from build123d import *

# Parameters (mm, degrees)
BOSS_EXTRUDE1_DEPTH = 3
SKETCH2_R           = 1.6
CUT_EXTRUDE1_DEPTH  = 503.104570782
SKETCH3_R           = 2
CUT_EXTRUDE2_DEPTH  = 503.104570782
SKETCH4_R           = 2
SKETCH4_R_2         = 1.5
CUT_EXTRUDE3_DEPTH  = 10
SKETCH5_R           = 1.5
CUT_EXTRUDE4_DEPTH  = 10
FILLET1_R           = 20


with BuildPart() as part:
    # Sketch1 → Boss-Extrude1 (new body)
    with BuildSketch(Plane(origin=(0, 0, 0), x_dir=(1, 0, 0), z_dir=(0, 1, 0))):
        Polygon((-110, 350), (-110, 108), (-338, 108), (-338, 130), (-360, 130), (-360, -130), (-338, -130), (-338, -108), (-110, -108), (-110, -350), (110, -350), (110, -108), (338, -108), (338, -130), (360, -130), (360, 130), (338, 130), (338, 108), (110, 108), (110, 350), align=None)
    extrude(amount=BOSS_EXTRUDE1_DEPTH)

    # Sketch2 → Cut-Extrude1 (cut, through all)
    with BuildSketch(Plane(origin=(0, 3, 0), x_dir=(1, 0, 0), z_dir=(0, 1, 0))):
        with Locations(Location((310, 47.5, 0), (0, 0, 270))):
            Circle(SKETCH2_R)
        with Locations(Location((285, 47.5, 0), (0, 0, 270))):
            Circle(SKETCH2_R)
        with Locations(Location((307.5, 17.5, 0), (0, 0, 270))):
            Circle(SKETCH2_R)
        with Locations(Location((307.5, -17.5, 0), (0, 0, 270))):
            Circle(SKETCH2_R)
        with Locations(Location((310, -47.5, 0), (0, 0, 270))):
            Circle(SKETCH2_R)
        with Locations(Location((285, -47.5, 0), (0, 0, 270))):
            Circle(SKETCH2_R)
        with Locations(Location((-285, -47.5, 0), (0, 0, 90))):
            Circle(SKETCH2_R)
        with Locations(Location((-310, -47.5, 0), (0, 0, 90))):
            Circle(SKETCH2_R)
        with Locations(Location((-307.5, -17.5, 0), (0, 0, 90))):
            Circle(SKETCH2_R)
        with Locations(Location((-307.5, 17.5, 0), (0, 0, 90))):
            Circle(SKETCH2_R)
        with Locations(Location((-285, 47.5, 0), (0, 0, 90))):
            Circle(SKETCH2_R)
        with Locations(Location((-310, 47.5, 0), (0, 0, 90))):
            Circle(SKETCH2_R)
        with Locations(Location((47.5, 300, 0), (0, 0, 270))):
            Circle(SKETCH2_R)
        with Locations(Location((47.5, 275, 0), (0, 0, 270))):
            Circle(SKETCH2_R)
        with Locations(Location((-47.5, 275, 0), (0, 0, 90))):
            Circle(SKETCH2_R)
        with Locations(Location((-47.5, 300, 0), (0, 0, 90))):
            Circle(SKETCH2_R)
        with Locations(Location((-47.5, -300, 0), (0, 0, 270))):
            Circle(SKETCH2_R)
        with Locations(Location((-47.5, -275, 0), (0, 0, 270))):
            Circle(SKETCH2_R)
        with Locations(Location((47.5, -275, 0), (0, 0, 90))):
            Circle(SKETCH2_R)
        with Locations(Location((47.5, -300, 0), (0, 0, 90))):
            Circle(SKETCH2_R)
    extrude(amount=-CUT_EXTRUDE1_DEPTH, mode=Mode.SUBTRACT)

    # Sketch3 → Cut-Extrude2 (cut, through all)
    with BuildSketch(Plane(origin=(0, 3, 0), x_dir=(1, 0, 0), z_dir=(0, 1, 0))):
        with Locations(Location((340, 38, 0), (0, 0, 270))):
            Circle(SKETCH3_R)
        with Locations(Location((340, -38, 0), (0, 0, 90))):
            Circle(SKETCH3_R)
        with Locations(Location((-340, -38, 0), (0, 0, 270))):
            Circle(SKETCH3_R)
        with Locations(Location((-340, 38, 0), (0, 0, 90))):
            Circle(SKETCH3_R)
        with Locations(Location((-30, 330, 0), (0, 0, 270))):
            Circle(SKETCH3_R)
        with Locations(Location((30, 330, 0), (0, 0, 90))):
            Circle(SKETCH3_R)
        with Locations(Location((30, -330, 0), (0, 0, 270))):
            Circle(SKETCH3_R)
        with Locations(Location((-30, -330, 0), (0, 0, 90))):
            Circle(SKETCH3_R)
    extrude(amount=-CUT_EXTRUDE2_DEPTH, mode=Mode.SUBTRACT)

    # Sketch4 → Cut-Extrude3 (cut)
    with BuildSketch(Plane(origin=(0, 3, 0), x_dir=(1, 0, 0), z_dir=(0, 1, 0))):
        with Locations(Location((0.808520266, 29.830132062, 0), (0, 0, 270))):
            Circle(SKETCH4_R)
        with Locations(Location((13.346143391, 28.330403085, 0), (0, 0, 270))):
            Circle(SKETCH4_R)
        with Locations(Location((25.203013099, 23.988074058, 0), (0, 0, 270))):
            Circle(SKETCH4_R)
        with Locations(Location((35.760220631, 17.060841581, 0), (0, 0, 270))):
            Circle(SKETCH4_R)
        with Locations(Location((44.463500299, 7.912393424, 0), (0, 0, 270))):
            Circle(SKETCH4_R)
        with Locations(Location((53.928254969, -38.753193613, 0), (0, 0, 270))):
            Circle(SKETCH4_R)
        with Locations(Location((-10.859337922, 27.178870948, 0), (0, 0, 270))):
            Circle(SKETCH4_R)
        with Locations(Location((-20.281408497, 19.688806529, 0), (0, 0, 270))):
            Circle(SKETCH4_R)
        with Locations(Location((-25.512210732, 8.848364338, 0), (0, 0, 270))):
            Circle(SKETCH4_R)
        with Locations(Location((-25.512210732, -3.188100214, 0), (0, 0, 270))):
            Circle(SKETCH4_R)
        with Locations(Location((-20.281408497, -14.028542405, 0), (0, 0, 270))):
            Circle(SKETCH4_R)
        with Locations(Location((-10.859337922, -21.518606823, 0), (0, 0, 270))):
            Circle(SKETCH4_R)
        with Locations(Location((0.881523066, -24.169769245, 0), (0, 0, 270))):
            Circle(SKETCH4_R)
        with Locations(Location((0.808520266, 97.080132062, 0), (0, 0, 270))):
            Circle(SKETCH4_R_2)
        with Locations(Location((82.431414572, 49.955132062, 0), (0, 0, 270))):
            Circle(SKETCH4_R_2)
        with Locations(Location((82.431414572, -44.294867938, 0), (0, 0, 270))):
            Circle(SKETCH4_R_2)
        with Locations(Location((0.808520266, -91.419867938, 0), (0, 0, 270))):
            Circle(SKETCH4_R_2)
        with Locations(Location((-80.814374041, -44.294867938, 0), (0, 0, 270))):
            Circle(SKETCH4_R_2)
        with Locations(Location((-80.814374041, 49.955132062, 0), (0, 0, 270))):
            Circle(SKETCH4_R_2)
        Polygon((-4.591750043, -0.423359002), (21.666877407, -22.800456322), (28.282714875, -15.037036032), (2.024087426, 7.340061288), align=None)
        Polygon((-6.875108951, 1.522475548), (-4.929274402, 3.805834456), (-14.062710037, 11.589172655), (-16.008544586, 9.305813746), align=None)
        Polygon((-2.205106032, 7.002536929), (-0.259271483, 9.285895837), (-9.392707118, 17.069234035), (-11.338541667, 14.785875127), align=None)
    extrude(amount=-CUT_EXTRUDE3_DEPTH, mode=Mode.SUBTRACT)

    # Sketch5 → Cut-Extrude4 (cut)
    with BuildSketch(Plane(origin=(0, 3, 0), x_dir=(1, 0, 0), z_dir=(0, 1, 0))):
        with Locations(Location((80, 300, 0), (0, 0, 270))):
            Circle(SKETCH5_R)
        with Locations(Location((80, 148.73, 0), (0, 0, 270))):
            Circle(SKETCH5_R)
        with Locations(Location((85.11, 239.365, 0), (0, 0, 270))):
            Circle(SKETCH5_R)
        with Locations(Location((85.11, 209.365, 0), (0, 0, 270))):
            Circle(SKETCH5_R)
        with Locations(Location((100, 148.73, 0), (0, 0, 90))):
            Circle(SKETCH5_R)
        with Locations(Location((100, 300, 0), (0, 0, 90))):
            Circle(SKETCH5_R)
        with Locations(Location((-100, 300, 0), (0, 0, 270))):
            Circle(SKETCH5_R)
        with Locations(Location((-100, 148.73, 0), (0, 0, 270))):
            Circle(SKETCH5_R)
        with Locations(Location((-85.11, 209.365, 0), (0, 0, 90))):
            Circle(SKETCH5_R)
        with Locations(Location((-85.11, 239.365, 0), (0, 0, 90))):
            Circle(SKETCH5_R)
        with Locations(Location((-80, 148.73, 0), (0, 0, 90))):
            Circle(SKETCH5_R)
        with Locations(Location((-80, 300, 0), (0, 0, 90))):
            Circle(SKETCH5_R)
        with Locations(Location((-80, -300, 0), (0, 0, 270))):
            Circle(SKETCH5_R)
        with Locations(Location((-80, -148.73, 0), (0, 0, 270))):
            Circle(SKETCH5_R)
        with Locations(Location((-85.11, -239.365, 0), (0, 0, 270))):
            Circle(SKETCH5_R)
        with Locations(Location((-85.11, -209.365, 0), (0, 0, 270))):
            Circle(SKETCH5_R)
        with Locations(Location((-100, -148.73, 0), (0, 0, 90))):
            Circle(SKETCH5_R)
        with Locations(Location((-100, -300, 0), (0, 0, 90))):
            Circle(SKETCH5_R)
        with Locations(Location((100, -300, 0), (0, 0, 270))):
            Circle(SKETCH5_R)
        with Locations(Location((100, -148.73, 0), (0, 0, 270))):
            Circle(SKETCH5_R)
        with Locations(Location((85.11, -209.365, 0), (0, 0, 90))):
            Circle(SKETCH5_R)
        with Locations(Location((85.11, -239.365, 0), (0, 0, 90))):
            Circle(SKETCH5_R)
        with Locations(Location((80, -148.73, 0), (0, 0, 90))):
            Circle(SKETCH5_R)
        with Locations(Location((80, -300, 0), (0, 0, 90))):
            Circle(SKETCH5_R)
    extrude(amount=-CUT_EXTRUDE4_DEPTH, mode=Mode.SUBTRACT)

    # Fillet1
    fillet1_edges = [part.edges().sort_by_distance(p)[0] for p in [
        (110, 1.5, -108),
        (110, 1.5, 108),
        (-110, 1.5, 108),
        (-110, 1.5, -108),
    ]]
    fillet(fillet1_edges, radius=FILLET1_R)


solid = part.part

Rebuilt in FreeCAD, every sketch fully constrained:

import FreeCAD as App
import Part
import Sketcher


def edges_at(feature, points):
    """Names of the edges that pass closest to the given points."""
    edges = feature.Shape.Edges
    near = lambda p: min(range(len(edges)), key=lambda i: edges[i].distToShape(Part.Vertex(*p))[0])
    return sorted({f"Edge{near(p) + 1}" for p in points})

doc = App.newDocument("Part")
params = doc.addObject("Spreadsheet::Sheet", "Params")
for row, (alias, value) in enumerate([
    ("sketch1_width", "228 mm"),
    ("sketch1_width2", "22 mm"),
    ("sketch1_width3", "220 mm"),
    ("sketch1_height", "242 mm"),
    ("sketch1_height2", "260 mm"),
    ("pad1_length", "3 mm"),
    ("sketch2_diameter", "3.2 mm"),
    ("sketch3_diameter", "4 mm"),
    ("sketch4_diameter", "4 mm"),
    ("sketch4_diameter2", "3 mm"),
    ("sketch4_length", "3 mm"),
    ("sketch4_length2", "12 mm"),
    ("sketch4_length3", "34.5 mm"),
    ("pocket3_length", "10 mm"),
    ("sketch5_diameter", "3 mm"),
    ("pocket4_length", "10 mm"),
    ("fillet_radius", "20 mm"),
], start=1):
    params.set(f"A{row}", alias)
    params.set(f"B{row}", "=" + value)
    params.setAlias(f"B{row}", alias)

body = doc.addObject("PartDesign::Body", "Body")

sketch1 = doc.addObject("Sketcher::SketchObject", "Sketch")
body.addObject(sketch1)
sketch1.AttachmentSupport = (doc.XZ_Plane, [""])
sketch1.MapMode = "FlatFace"
sketch1.addGeometry([
    Part.LineSegment(App.Vector(-110, -350, 0), App.Vector(-110, -108, 0)),
    Part.LineSegment(App.Vector(-110, -108, 0), App.Vector(-338, -108, 0)),
    Part.LineSegment(App.Vector(-338, -108, 0), App.Vector(-338, -130, 0)),
    Part.LineSegment(App.Vector(-338, -130, 0), App.Vector(-360, -130, 0)),
    Part.LineSegment(App.Vector(-360, -130, 0), App.Vector(-360, 130, 0)),
    Part.LineSegment(App.Vector(-360, 130, 0), App.Vector(-338, 130, 0)),
    Part.LineSegment(App.Vector(-338, 130, 0), App.Vector(-338, 108, 0)),
    Part.LineSegment(App.Vector(-338, 108, 0), App.Vector(-110, 108, 0)),
    Part.LineSegment(App.Vector(-110, 108, 0), App.Vector(-110, 350, 0)),
    Part.LineSegment(App.Vector(-110, 350, 0), App.Vector(110, 350, 0)),
    Part.LineSegment(App.Vector(110, 350, 0), App.Vector(110, 108, 0)),
    Part.LineSegment(App.Vector(110, 108, 0), App.Vector(338, 108, 0)),
    Part.LineSegment(App.Vector(338, 108, 0), App.Vector(338, 130, 0)),
    Part.LineSegment(App.Vector(338, 130, 0), App.Vector(360, 130, 0)),
    Part.LineSegment(App.Vector(360, 130, 0), App.Vector(360, -130, 0)),
    Part.LineSegment(App.Vector(360, -130, 0), App.Vector(338, -130, 0)),
    Part.LineSegment(App.Vector(338, -130, 0), App.Vector(338, -108, 0)),
    Part.LineSegment(App.Vector(338, -108, 0), App.Vector(110, -108, 0)),
    Part.LineSegment(App.Vector(110, -108, 0), App.Vector(110, -350, 0)),
    Part.LineSegment(App.Vector(110, -350, 0), App.Vector(-110, -350, 0)),
], False)
sketch1.addConstraint([
    Sketcher.Constraint("Coincident", 0, 2, 1, 1),
    Sketcher.Constraint("Coincident", 1, 2, 2, 1),
    Sketcher.Constraint("Coincident", 2, 2, 3, 1),
    Sketcher.Constraint("Coincident", 3, 2, 4, 1),
    Sketcher.Constraint("Coincident", 4, 2, 5, 1),
    Sketcher.Constraint("Coincident", 5, 2, 6, 1),
    Sketcher.Constraint("Coincident", 6, 2, 7, 1),
    Sketcher.Constraint("Coincident", 7, 2, 8, 1),
    Sketcher.Constraint("Coincident", 8, 2, 9, 1),
    Sketcher.Constraint("Coincident", 9, 2, 10, 1),
    Sketcher.Constraint("Coincident", 10, 2, 11, 1),
    Sketcher.Constraint("Coincident", 11, 2, 12, 1),
    Sketcher.Constraint("Coincident", 12, 2, 13, 1),
    Sketcher.Constraint("Coincident", 13, 2, 14, 1),
    Sketcher.Constraint("Coincident", 14, 2, 15, 1),
    Sketcher.Constraint("Coincident", 15, 2, 16, 1),
    Sketcher.Constraint("Coincident", 16, 2, 17, 1),
    Sketcher.Constraint("Coincident", 17, 2, 18, 1),
    Sketcher.Constraint("Coincident", 18, 2, 19, 1),
    Sketcher.Constraint("Coincident", 19, 2, 0, 1),
    Sketcher.Constraint("Vertical", 0),
    Sketcher.Constraint("Horizontal", 1),
    Sketcher.Constraint("Vertical", 2),
    Sketcher.Constraint("Horizontal", 3),
    Sketcher.Constraint("Vertical", 4),
    Sketcher.Constraint("Horizontal", 5),
    Sketcher.Constraint("Vertical", 6),
    Sketcher.Constraint("Horizontal", 7),
    Sketcher.Constraint("Vertical", 8),
    Sketcher.Constraint("Horizontal", 9),
    Sketcher.Constraint("Vertical", 10),
    Sketcher.Constraint("Horizontal", 11),
    Sketcher.Constraint("Vertical", 12),
    Sketcher.Constraint("Horizontal", 13),
    Sketcher.Constraint("Vertical", 14),
    Sketcher.Constraint("Horizontal", 15),
    Sketcher.Constraint("Vertical", 16),
    Sketcher.Constraint("Horizontal", 17),
    Sketcher.Constraint("Vertical", 18),
    Sketcher.Constraint("Horizontal", 19),
    Sketcher.Constraint("Symmetric", 0, 2, 10, 2, -1, 1),
    Sketcher.Constraint("Symmetric", 2, 2, 12, 2, -1, 1),
    Sketcher.Constraint("Symmetric", 4, 2, 14, 2, -1, 1),
    Sketcher.Constraint("Symmetric", 6, 2, 16, 2, -1, 1),
    Sketcher.Constraint("Symmetric", 8, 2, 18, 2, -1, 1),
    Sketcher.Constraint("Symmetric", 7, 2, 10, 2, -2),
    Sketcher.Constraint("Symmetric", 5, 2, 12, 2, -2),
    Sketcher.Constraint("Equal", 15, 2),
    Sketcher.Constraint("DistanceX", 1, 2, 1, 1, 228.0),
    Sketcher.Constraint("DistanceX", 3, 2, 3, 1, 22.0),
    Sketcher.Constraint("DistanceX", 9, 1, 9, 2, 220.0),
    Sketcher.Constraint("DistanceY", 0, 1, 0, 2, 242.0),
    Sketcher.Constraint("DistanceY", 4, 1, 4, 2, 260.0),
])
sketch1.setExpression("Constraints[48]", "Params.sketch1_width")
sketch1.setExpression("Constraints[49]", "Params.sketch1_width2")
sketch1.setExpression("Constraints[50]", "Params.sketch1_width3")
sketch1.setExpression("Constraints[51]", "Params.sketch1_height")
sketch1.setExpression("Constraints[52]", "Params.sketch1_height2")
pad1 = doc.addObject("PartDesign::Pad", "Pad")
body.addObject(pad1)
pad1.Profile = sketch1
pad1.setExpression("Length", "Params.pad1_length")
pad1.Reversed = True

sketch2 = doc.addObject("Sketcher::SketchObject", "Sketch001")
body.addObject(sketch2)
sketch2.AttachmentSupport = (doc.XZ_Plane, [""])
sketch2.MapMode = "FlatFace"
sketch2.AttachmentOffset = App.Placement(App.Vector(0, 0, -3), App.Rotation())
sketch2.addGeometry([
    Part.Circle(App.Vector(310, -47.5, 0), App.Vector(0, 0, 1), 1.6),
    Part.Circle(App.Vector(285, -47.5, 0), App.Vector(0, 0, 1), 1.6),
    Part.Circle(App.Vector(307.5, -17.5, 0), App.Vector(0, 0, 1), 1.6),
    Part.Circle(App.Vector(307.5, 17.5, 0), App.Vector(0, 0, 1), 1.6),
    Part.Circle(App.Vector(310, 47.5, 0), App.Vector(0, 0, 1), 1.6),
    Part.Circle(App.Vector(285, 47.5, 0), App.Vector(0, 0, 1), 1.6),
    Part.Circle(App.Vector(-285, 47.5, 0), App.Vector(0, 0, 1), 1.6),
    Part.Circle(App.Vector(-310, 47.5, 0), App.Vector(0, 0, 1), 1.6),
    Part.Circle(App.Vector(-307.5, 17.5, 0), App.Vector(0, 0, 1), 1.6),
    Part.Circle(App.Vector(-307.5, -17.5, 0), App.Vector(0, 0, 1), 1.6),
    Part.Circle(App.Vector(-285, -47.5, 0), App.Vector(0, 0, 1), 1.6),
    Part.Circle(App.Vector(-310, -47.5, 0), App.Vector(0, 0, 1), 1.6),
    Part.Circle(App.Vector(47.5, -300, 0), App.Vector(0, 0, 1), 1.6),
    Part.Circle(App.Vector(47.5, -275, 0), App.Vector(0, 0, 1), 1.6),
    Part.Circle(App.Vector(-47.5, -275, 0), App.Vector(0, 0, 1), 1.6),
    Part.Circle(App.Vector(-47.5, -300, 0), App.Vector(0, 0, 1), 1.6),
    Part.Circle(App.Vector(-47.5, 300, 0), App.Vector(0, 0, 1), 1.6),
    Part.Circle(App.Vector(-47.5, 275, 0), App.Vector(0, 0, 1), 1.6),
    Part.Circle(App.Vector(47.5, 275, 0), App.Vector(0, 0, 1), 1.6),
    Part.Circle(App.Vector(47.5, 300, 0), App.Vector(0, 0, 1), 1.6),
], False)
sketch2.addConstraint([
    Sketcher.Constraint("Equal", 0, 1),
    Sketcher.Constraint("Equal", 1, 2),
    Sketcher.Constraint("Equal", 2, 3),
    Sketcher.Constraint("Equal", 3, 4),
    Sketcher.Constraint("Equal", 4, 5),
    Sketcher.Constraint("Equal", 5, 6),
    Sketcher.Constraint("Equal", 6, 7),
    Sketcher.Constraint("Equal", 7, 8),
    Sketcher.Constraint("Equal", 8, 9),
    Sketcher.Constraint("Equal", 9, 10),
    Sketcher.Constraint("Equal", 10, 11),
    Sketcher.Constraint("Equal", 11, 12),
    Sketcher.Constraint("Equal", 12, 13),
    Sketcher.Constraint("Equal", 13, 14),
    Sketcher.Constraint("Equal", 14, 15),
    Sketcher.Constraint("Equal", 15, 16),
    Sketcher.Constraint("Equal", 16, 17),
    Sketcher.Constraint("Equal", 17, 18),
    Sketcher.Constraint("Equal", 18, 19),
    Sketcher.Constraint("Symmetric", 1, 3, 6, 3, -1, 1),
    Sketcher.Constraint("Symmetric", 0, 3, 7, 3, -1, 1),
    Sketcher.Constraint("Symmetric", 2, 3, 8, 3, -1, 1),
    Sketcher.Constraint("Symmetric", 3, 3, 9, 3, -1, 1),
    Sketcher.Constraint("Symmetric", 5, 3, 10, 3, -1, 1),
    Sketcher.Constraint("Symmetric", 4, 3, 11, 3, -1, 1),
    Sketcher.Constraint("Symmetric", 12, 3, 16, 3, -1, 1),
    Sketcher.Constraint("Symmetric", 13, 3, 17, 3, -1, 1),
    Sketcher.Constraint("Symmetric", 14, 3, 18, 3, -1, 1),
    Sketcher.Constraint("Symmetric", 15, 3, 19, 3, -1, 1),
    Sketcher.Constraint("Symmetric", 5, 3, 6, 3, -2),
    Sketcher.Constraint("Symmetric", 4, 3, 7, 3, -2),
    Sketcher.Constraint("Symmetric", 3, 3, 8, 3, -2),
    Sketcher.Constraint("Symmetric", 13, 3, 14, 3, -2),
    Sketcher.Constraint("Symmetric", 12, 3, 15, 3, -2),
    Sketcher.Constraint("Horizontal", 0, 3, 1, 3),
    Sketcher.Constraint("Vertical", 12, 3, 13, 3),
    Sketcher.Constraint("Diameter", 0, 3.2),
    Sketcher.Constraint("DistanceX", -1, 1, 0, 3, 310.0),
    Sketcher.Constraint("DistanceX", -1, 1, 1, 3, 285.0),
    Sketcher.Constraint("DistanceY", 12, 3, -1, 1, 300.0),
    Sketcher.Constraint("DistanceY", 13, 3, -1, 1, 275.0),
    Sketcher.Constraint("DistanceY", 0, 3, 2, 3, 30.0),
    Sketcher.Constraint("DistanceY", 2, 3, 3, 3, 35.0),
    Sketcher.Constraint("DistanceX", 8, 3, 3, 3, 615.0),
    Sketcher.Constraint("DistanceX", 12, 3, 2, 3, 260.0),
])
sketch2.setExpression("Constraints[36]", "Params.sketch2_diameter")
pocket1 = doc.addObject("PartDesign::Pocket", "Pocket")
body.addObject(pocket1)
pocket1.Profile = sketch2
pocket1.Type = "ThroughAll"
pocket1.Reversed = True

sketch3 = doc.addObject("Sketcher::SketchObject", "Sketch002")
body.addObject(sketch3)
sketch3.AttachmentSupport = (doc.XZ_Plane, [""])
sketch3.MapMode = "FlatFace"
sketch3.AttachmentOffset = App.Placement(App.Vector(0, 0, -3), App.Rotation())
sketch3.addGeometry([
    Part.Circle(App.Vector(340, -38, 0), App.Vector(0, 0, 1), 2),
    Part.Circle(App.Vector(340, 38, 0), App.Vector(0, 0, 1), 2),
    Part.Circle(App.Vector(-340, 38, 0), App.Vector(0, 0, 1), 2),
    Part.Circle(App.Vector(-340, -38, 0), App.Vector(0, 0, 1), 2),
    Part.Circle(App.Vector(-30, -330, 0), App.Vector(0, 0, 1), 2),
    Part.Circle(App.Vector(30, -330, 0), App.Vector(0, 0, 1), 2),
    Part.Circle(App.Vector(30, 330, 0), App.Vector(0, 0, 1), 2),
    Part.Circle(App.Vector(-30, 330, 0), App.Vector(0, 0, 1), 2),
], False)
sketch3.addConstraint([
    Sketcher.Constraint("Equal", 0, 1),
    Sketcher.Constraint("Equal", 1, 2),
    Sketcher.Constraint("Equal", 2, 3),
    Sketcher.Constraint("Equal", 3, 4),
    Sketcher.Constraint("Equal", 4, 5),
    Sketcher.Constraint("Equal", 5, 6),
    Sketcher.Constraint("Equal", 6, 7),
    Sketcher.Constraint("Symmetric", 0, 3, 2, 3, -1, 1),
    Sketcher.Constraint("Symmetric", 1, 3, 3, 3, -1, 1),
    Sketcher.Constraint("Symmetric", 4, 3, 6, 3, -1, 1),
    Sketcher.Constraint("Symmetric", 5, 3, 7, 3, -1, 1),
    Sketcher.Constraint("Symmetric", 1, 3, 2, 3, -2),
    Sketcher.Constraint("Symmetric", 4, 3, 5, 3, -2),
    Sketcher.Constraint("Diameter", 0, 4.0),
    Sketcher.Constraint("DistanceX", -1, 1, 0, 3, 340.0),
    Sketcher.Constraint("DistanceY", 0, 3, -1, 1, 38.0),
    Sketcher.Constraint("DistanceX", 4, 3, -1, 1, 30.0),
    Sketcher.Constraint("DistanceY", 4, 3, -1, 1, 330.0),
])
sketch3.setExpression("Constraints[13]", "Params.sketch3_diameter")
pocket2 = doc.addObject("PartDesign::Pocket", "Pocket001")
body.addObject(pocket2)
pocket2.Profile = sketch3
pocket2.Type = "ThroughAll"
pocket2.Reversed = True

sketch4 = doc.addObject("Sketcher::SketchObject", "Sketch003")
body.addObject(sketch4)
sketch4.AttachmentSupport = (doc.XZ_Plane, [""])
sketch4.MapMode = "FlatFace"
sketch4.AttachmentOffset = App.Placement(App.Vector(0, 0, -3), App.Rotation())
sketch4.addGeometry([
    Part.Circle(App.Vector(0.80852, -29.830132, 0), App.Vector(0, 0, 1), 2),
    Part.Circle(App.Vector(13.346143, -28.330403, 0), App.Vector(0, 0, 1), 2),
    Part.Circle(App.Vector(25.203013, -23.988074, 0), App.Vector(0, 0, 1), 2),
    Part.Circle(App.Vector(35.760221, -17.060842, 0), App.Vector(0, 0, 1), 2),
    Part.Circle(App.Vector(44.4635, -7.912393, 0), App.Vector(0, 0, 1), 2),
    Part.Circle(App.Vector(53.928255, 38.753194, 0), App.Vector(0, 0, 1), 2),
    Part.Circle(App.Vector(-10.859338, -27.178871, 0), App.Vector(0, 0, 1), 2),
    Part.Circle(App.Vector(-20.281408, -19.688807, 0), App.Vector(0, 0, 1), 2),
    Part.Circle(App.Vector(-25.512211, -8.848364, 0), App.Vector(0, 0, 1), 2),
    Part.Circle(App.Vector(-25.512211, 3.1881, 0), App.Vector(0, 0, 1), 2),
    Part.Circle(App.Vector(-20.281408, 14.028542, 0), App.Vector(0, 0, 1), 2),
    Part.Circle(App.Vector(-10.859338, 21.518607, 0), App.Vector(0, 0, 1), 2),
    Part.Circle(App.Vector(0.881523, 24.169769, 0), App.Vector(0, 0, 1), 2),
    Part.Circle(App.Vector(0.80852, -97.080132, 0), App.Vector(0, 0, 1), 1.5),
    Part.Circle(App.Vector(82.431415, -49.955132, 0), App.Vector(0, 0, 1), 1.5),
    Part.Circle(App.Vector(82.431415, 44.294868, 0), App.Vector(0, 0, 1), 1.5),
    Part.Circle(App.Vector(0.80852, 91.419868, 0), App.Vector(0, 0, 1), 1.5),
    Part.Circle(App.Vector(-80.814374, 44.294868, 0), App.Vector(0, 0, 1), 1.5),
    Part.Circle(App.Vector(-80.814374, -49.955132, 0), App.Vector(0, 0, 1), 1.5),
    Part.LineSegment(App.Vector(-4.59175, 0.423359, 0), App.Vector(21.666877, 22.800456, 0)),
    Part.LineSegment(App.Vector(21.666877, 22.800456, 0), App.Vector(28.282715, 15.037036, 0)),
    Part.LineSegment(App.Vector(28.282715, 15.037036, 0), App.Vector(2.024087, -7.340061, 0)),
    Part.LineSegment(App.Vector(2.024087, -7.340061, 0), App.Vector(-4.59175, 0.423359, 0)),
    Part.LineSegment(App.Vector(-6.875109, -1.522476, 0), App.Vector(-4.929274, -3.805834, 0)),
    Part.LineSegment(App.Vector(-4.929274, -3.805834, 0), App.Vector(-14.06271, -11.589173, 0)),
    Part.LineSegment(App.Vector(-14.06271, -11.589173, 0), App.Vector(-16.008545, -9.305814, 0)),
    Part.LineSegment(App.Vector(-16.008545, -9.305814, 0), App.Vector(-6.875109, -1.522476, 0)),
    Part.LineSegment(App.Vector(-2.205106, -7.002537, 0), App.Vector(-0.259271, -9.285896, 0)),
    Part.LineSegment(App.Vector(-0.259271, -9.285896, 0), App.Vector(-9.392707, -17.069234, 0)),
    Part.LineSegment(App.Vector(-9.392707, -17.069234, 0), App.Vector(-11.338542, -14.785875, 0)),
    Part.LineSegment(App.Vector(-11.338542, -14.785875, 0), App.Vector(-2.205106, -7.002537, 0)),
], False)
sketch4.addConstraint([
    Sketcher.Constraint("Coincident", 19, 2, 20, 1),
    Sketcher.Constraint("Coincident", 20, 2, 21, 1),
    Sketcher.Constraint("Coincident", 21, 2, 22, 1),
    Sketcher.Constraint("Coincident", 22, 2, 19, 1),
    Sketcher.Constraint("Coincident", 23, 2, 24, 1),
    Sketcher.Constraint("Coincident", 24, 2, 25, 1),
    Sketcher.Constraint("Coincident", 25, 2, 26, 1),
    Sketcher.Constraint("Coincident", 26, 2, 23, 1),
    Sketcher.Constraint("Coincident", 27, 2, 28, 1),
    Sketcher.Constraint("Coincident", 28, 2, 29, 1),
    Sketcher.Constraint("Coincident", 29, 2, 30, 1),
    Sketcher.Constraint("Coincident", 30, 2, 27, 1),
    Sketcher.Constraint("Equal", 0, 1),
    Sketcher.Constraint("Equal", 1, 2),
    Sketcher.Constraint("Equal", 2, 3),
    Sketcher.Constraint("Equal", 3, 4),
    Sketcher.Constraint("Equal", 4, 5),
    Sketcher.Constraint("Equal", 5, 6),
    Sketcher.Constraint("Equal", 6, 7),
    Sketcher.Constraint("Equal", 7, 8),
    Sketcher.Constraint("Equal", 8, 9),
    Sketcher.Constraint("Equal", 9, 10),
    Sketcher.Constraint("Equal", 10, 11),
    Sketcher.Constraint("Equal", 11, 12),
    Sketcher.Constraint("Equal", 13, 14),
    Sketcher.Constraint("Equal", 14, 15),
    Sketcher.Constraint("Equal", 15, 16),
    Sketcher.Constraint("Equal", 16, 17),
    Sketcher.Constraint("Equal", 17, 18),
    Sketcher.Constraint("Perpendicular", 19, 20),
    Sketcher.Constraint("Perpendicular", 20, 21),
    Sketcher.Constraint("Perpendicular", 21, 22),
    Sketcher.Constraint("Parallel", 22, 23),
    Sketcher.Constraint("Perpendicular", 23, 24),
    Sketcher.Constraint("Perpendicular", 24, 25),
    Sketcher.Constraint("Perpendicular", 25, 26),
    Sketcher.Constraint("Perpendicular", 26, 27),
    Sketcher.Constraint("Perpendicular", 27, 28),
    Sketcher.Constraint("Perpendicular", 28, 29),
    Sketcher.Constraint("Perpendicular", 29, 30),
    Sketcher.Constraint("Horizontal", 15, 3, 17, 3),
    Sketcher.Constraint("Horizontal", 14, 3, 18, 3),
    Sketcher.Constraint("Vertical", 8, 3, 9, 3),
    Sketcher.Constraint("Vertical", 7, 3, 10, 3),
    Sketcher.Constraint("Vertical", 6, 3, 11, 3),
    Sketcher.Constraint("Vertical", 0, 3, 13, 3),
    Sketcher.Constraint("Vertical", 14, 3, 15, 3),
    Sketcher.Constraint("Vertical", 13, 3, 16, 3),
    Sketcher.Constraint("Vertical", 17, 3, 18, 3),
    Sketcher.Constraint("Equal", 25, 27),
    Sketcher.Constraint("Equal", 26, 28),
    Sketcher.Constraint("Diameter", 0, 4.0),
    Sketcher.Constraint("Diameter", 13, 3.0),
    Sketcher.Constraint("Distance", 23, 3.0),
    Sketcher.Constraint("Distance", 24, 12.0),
    Sketcher.Constraint("Distance", 19, 34.5),
    Sketcher.Constraint("Distance", 20, 10.2),
    Sketcher.Constraint("DistanceY", 13, 3, 0, 3, 67.25),
    Sketcher.Constraint("DistanceY", 14, 3, 0, 3, 20.125),
    Sketcher.Constraint("DistanceX", -1, 1, 4, 3, 44.4635),
    Sketcher.Constraint("DistanceY", -1, 1, 9, 3, 3.1881),
    Sketcher.Constraint("DistanceX", 0, 3, 3, 3, 34.9517),
    Sketcher.Constraint("DistanceX", 2, 3, 14, 3, 57.228401),
    Sketcher.Constraint("DistanceY", 12, 3, 15, 3, 20.125099),
    Sketcher.Constraint("DistanceY", 12, 3, 16, 3, 67.250099),
    Sketcher.Constraint("DistanceX", 8, 3, 21, 2, 27.536298),
    Sketcher.Constraint("DistanceX", 7, 3, 24, 2, 6.218698),
    Sketcher.Constraint("DistanceX", 8, 3, 24, 2, 11.449501),
    Sketcher.Constraint("DistanceY", 6, 3, 24, 2, 15.589698),
    Sketcher.Constraint("DistanceX", 24, 2, 26, 2, 7.187601),
    Sketcher.Constraint("DistanceX", 7, 3, 28, 2, 10.888701),
    Sketcher.Constraint("DistanceX", -1, 1, 0, 3, 0.80852),
    Sketcher.Constraint("DistanceY", 3, 3, -1, 1, 17.060842),
    Sketcher.Constraint("DistanceY", 6, 3, -1, 1, 27.178871),
    Sketcher.Constraint("DistanceX", 7, 3, -1, 1, 20.281408),
    Sketcher.Constraint("DistanceY", -1, 1, 12, 3, 24.169769),
    Sketcher.Constraint("DistanceY", 21, 2, -1, 1, 7.340061),
    Sketcher.Constraint("DistanceY", 0, 3, 1, 3, 1.499729),
    Sketcher.Constraint("DistanceX", 1, 3, 2, 3, 11.85687),
    Sketcher.Constraint("DistanceY", 1, 3, 2, 3, 4.342329),
    Sketcher.Constraint("DistanceY", 1, 3, 3, 3, 11.269562),
    Sketcher.Constraint("DistanceY", 3, 3, 4, 3, 9.148448),
    Sketcher.Constraint("DistanceX", 2, 3, 5, 3, 28.725242),
    Sketcher.Constraint("DistanceX", 6, 3, 0, 3, 11.667858),
    Sketcher.Constraint("DistanceX", 6, 3, 1, 3, 24.205481),
    Sketcher.Constraint("DistanceY", 1, 3, 8, 3, 19.482039),
    Sketcher.Constraint("DistanceY", 7, 3, 10, 3, 33.717349),
    Sketcher.Constraint("DistanceY", 8, 3, 11, 3, 30.366971),
    Sketcher.Constraint("DistanceX", 11, 3, 12, 3, 11.740861),
    Sketcher.Constraint("DistanceY", 27, 2, 23, 2, 5.480061),
    Sketcher.Constraint("DistanceY", 7, 3, 29, 2, 4.902931),
    Sketcher.Constraint("DistanceY", -1, 1, 5, 3, 38.753194),
    Sketcher.Constraint("DistanceX", 17, 3, -1, 1, 80.814374),
])
sketch4.setExpression("Constraints[51]", "Params.sketch4_diameter")
sketch4.setExpression("Constraints[52]", "Params.sketch4_diameter2")
sketch4.setExpression("Constraints[53]", "Params.sketch4_length")
sketch4.setExpression("Constraints[54]", "Params.sketch4_length2")
sketch4.setExpression("Constraints[55]", "Params.sketch4_length3")
pocket3 = doc.addObject("PartDesign::Pocket", "Pocket002")
body.addObject(pocket3)
pocket3.Profile = sketch4
pocket3.setExpression("Length", "Params.pocket3_length")
pocket3.Reversed = True

sketch5 = doc.addObject("Sketcher::SketchObject", "Sketch004")
body.addObject(sketch5)
sketch5.AttachmentSupport = (doc.XZ_Plane, [""])
sketch5.MapMode = "FlatFace"
sketch5.AttachmentOffset = App.Placement(App.Vector(0, 0, -3), App.Rotation())
sketch5.addGeometry([
    Part.Circle(App.Vector(80, -300, 0), App.Vector(0, 0, 1), 1.5),
    Part.Circle(App.Vector(80, -148.73, 0), App.Vector(0, 0, 1), 1.5),
    Part.Circle(App.Vector(85.11, -239.365, 0), App.Vector(0, 0, 1), 1.5),
    Part.Circle(App.Vector(85.11, -209.365, 0), App.Vector(0, 0, 1), 1.5),
    Part.Circle(App.Vector(100, -148.73, 0), App.Vector(0, 0, 1), 1.5),
    Part.Circle(App.Vector(100, -300, 0), App.Vector(0, 0, 1), 1.5),
    Part.Circle(App.Vector(-100, -300, 0), App.Vector(0, 0, 1), 1.5),
    Part.Circle(App.Vector(-100, -148.73, 0), App.Vector(0, 0, 1), 1.5),
    Part.Circle(App.Vector(-85.11, -209.365, 0), App.Vector(0, 0, 1), 1.5),
    Part.Circle(App.Vector(-85.11, -239.365, 0), App.Vector(0, 0, 1), 1.5),
    Part.Circle(App.Vector(-80, -148.73, 0), App.Vector(0, 0, 1), 1.5),
    Part.Circle(App.Vector(-80, -300, 0), App.Vector(0, 0, 1), 1.5),
    Part.Circle(App.Vector(-80, 300, 0), App.Vector(0, 0, 1), 1.5),
    Part.Circle(App.Vector(-80, 148.73, 0), App.Vector(0, 0, 1), 1.5),
    Part.Circle(App.Vector(-85.11, 239.365, 0), App.Vector(0, 0, 1), 1.5),
    Part.Circle(App.Vector(-85.11, 209.365, 0), App.Vector(0, 0, 1), 1.5),
    Part.Circle(App.Vector(-100, 148.73, 0), App.Vector(0, 0, 1), 1.5),
    Part.Circle(App.Vector(-100, 300, 0), App.Vector(0, 0, 1), 1.5),
    Part.Circle(App.Vector(100, 300, 0), App.Vector(0, 0, 1), 1.5),
    Part.Circle(App.Vector(100, 148.73, 0), App.Vector(0, 0, 1), 1.5),
    Part.Circle(App.Vector(85.11, 209.365, 0), App.Vector(0, 0, 1), 1.5),
    Part.Circle(App.Vector(85.11, 239.365, 0), App.Vector(0, 0, 1), 1.5),
    Part.Circle(App.Vector(80, 148.73, 0), App.Vector(0, 0, 1), 1.5),
    Part.Circle(App.Vector(80, 300, 0), App.Vector(0, 0, 1), 1.5),
], False)
sketch5.addConstraint([
    Sketcher.Constraint("Equal", 0, 1),
    Sketcher.Constraint("Equal", 1, 2),
    Sketcher.Constraint("Equal", 2, 3),
    Sketcher.Constraint("Equal", 3, 4),
    Sketcher.Constraint("Equal", 4, 5),
    Sketcher.Constraint("Equal", 5, 6),
    Sketcher.Constraint("Equal", 6, 7),
    Sketcher.Constraint("Equal", 7, 8),
    Sketcher.Constraint("Equal", 8, 9),
    Sketcher.Constraint("Equal", 9, 10),
    Sketcher.Constraint("Equal", 10, 11),
    Sketcher.Constraint("Equal", 11, 12),
    Sketcher.Constraint("Equal", 12, 13),
    Sketcher.Constraint("Equal", 13, 14),
    Sketcher.Constraint("Equal", 14, 15),
    Sketcher.Constraint("Equal", 15, 16),
    Sketcher.Constraint("Equal", 16, 17),
    Sketcher.Constraint("Equal", 17, 18),
    Sketcher.Constraint("Equal", 18, 19),
    Sketcher.Constraint("Equal", 19, 20),
    Sketcher.Constraint("Equal", 20, 21),
    Sketcher.Constraint("Equal", 21, 22),
    Sketcher.Constraint("Equal", 22, 23),
    Sketcher.Constraint("Symmetric", 0, 3, 12, 3, -1, 1),
    Sketcher.Constraint("Symmetric", 1, 3, 13, 3, -1, 1),
    Sketcher.Constraint("Symmetric", 2, 3, 14, 3, -1, 1),
    Sketcher.Constraint("Symmetric", 3, 3, 15, 3, -1, 1),
    Sketcher.Constraint("Symmetric", 4, 3, 16, 3, -1, 1),
    Sketcher.Constraint("Symmetric", 5, 3, 17, 3, -1, 1),
    Sketcher.Constraint("Symmetric", 6, 3, 18, 3, -1, 1),
    Sketcher.Constraint("Symmetric", 7, 3, 19, 3, -1, 1),
    Sketcher.Constraint("Symmetric", 8, 3, 20, 3, -1, 1),
    Sketcher.Constraint("Symmetric", 9, 3, 21, 3, -1, 1),
    Sketcher.Constraint("Symmetric", 10, 3, 22, 3, -1, 1),
    Sketcher.Constraint("Symmetric", 11, 3, 23, 3, -1, 1),
    Sketcher.Constraint("Symmetric", 5, 3, 6, 3, -2),
    Sketcher.Constraint("Symmetric", 4, 3, 7, 3, -2),
    Sketcher.Constraint("Symmetric", 3, 3, 8, 3, -2),
    Sketcher.Constraint("Symmetric", 2, 3, 9, 3, -2),
    Sketcher.Constraint("Symmetric", 1, 3, 10, 3, -2),
    Sketcher.Constraint("Symmetric", 0, 3, 11, 3, -2),
    Sketcher.Constraint("Horizontal", 1, 3, 4, 3),
    Sketcher.Constraint("Horizontal", 0, 3, 5, 3),
    Sketcher.Constraint("Vertical", 0, 3, 1, 3),
    Sketcher.Constraint("Vertical", 2, 3, 3, 3),
    Sketcher.Constraint("Vertical", 4, 3, 5, 3),
    Sketcher.Constraint("Diameter", 0, 3.0),
    Sketcher.Constraint("DistanceX", -1, 1, 0, 3, 80.0),
    Sketcher.Constraint("DistanceY", 0, 3, -1, 1, 300.0),
    Sketcher.Constraint("DistanceX", -1, 1, 4, 3, 100.0),
    Sketcher.Constraint("DistanceY", 2, 3, 3, 3, 30.0),
    Sketcher.Constraint("DistanceY", 1, 3, -1, 1, 148.73),
    Sketcher.Constraint("DistanceX", -1, 1, 2, 3, 85.11),
    Sketcher.Constraint("DistanceY", 2, 3, -1, 1, 239.365),
])
sketch5.setExpression("Constraints[46]", "Params.sketch5_diameter")
pocket4 = doc.addObject("PartDesign::Pocket", "Pocket003")
body.addObject(pocket4)
pocket4.Profile = sketch5
pocket4.setExpression("Length", "Params.pocket4_length")
pocket4.Reversed = True
doc.recompute()

fillet = doc.addObject("PartDesign::Fillet", "Fillet")
body.addObject(fillet)
fillet.Base = (pocket4, edges_at(pocket4, [
    (110, 1.5, -108),
    (110, 1.5, 108),
    (-110, 1.5, 108),
    (-110, 1.5, -108),
]))
fillet.setExpression("Radius", "Params.fillet_radius")

doc.recompute()
